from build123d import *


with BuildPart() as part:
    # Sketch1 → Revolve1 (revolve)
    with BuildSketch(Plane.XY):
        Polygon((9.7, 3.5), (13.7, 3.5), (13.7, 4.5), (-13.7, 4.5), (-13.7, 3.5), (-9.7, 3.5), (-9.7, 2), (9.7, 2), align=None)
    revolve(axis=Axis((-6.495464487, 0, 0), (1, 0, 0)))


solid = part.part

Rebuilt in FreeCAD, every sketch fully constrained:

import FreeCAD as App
import Part
import Sketcher

V = App.Vector


def add_polygon(sketch, points):
    """Adds a closed chain of lines whose ends are joined by coincident constraints."""
    first, n = sketch.GeometryCount, len(points)
    for a, b in zip(points, points[1:] + points[:1]):
        sketch.addGeometry(Part.LineSegment(App.Vector(*a, 0), App.Vector(*b, 0)), False)
    for i in range(n):
        sketch.addConstraint(Sketcher.Constraint("Coincident", first + i, 2, first + (i + 1) % n, 1))

doc = App.newDocument("Part")
params = doc.addObject("Spreadsheet::Sheet", "Params")
for row, (alias, value) in enumerate([
    ("sketch1_width", "4 mm"),
    ("sketch1_height", "1 mm"),
    ("sketch1_width2", "27.4 mm"),
    ("sketch1_height2", "1.5 mm"),
    ("revolution_angle", "360 deg"),
], start=1):
    params.set(f"A{row}", alias)
    params.set(f"B{row}", "=" + value)
    params.setAlias(f"B{row}", alias)

body = doc.addObject("PartDesign::Body", "Body")

# Sketch on XY plane
sketch1 = body.newObject("Sketcher::SketchObject", "Sketch")
sketch1.AttachmentSupport = (doc.getObject("XY_Plane"), [""])
sketch1.MapMode = "FlatFace"
add_polygon(sketch1, [(9.7, 3.5), (13.7, 3.5), (13.7, 4.5), (-13.7, 4.5), (-13.7, 3.5), (-9.7, 3.5), (-9.7, 2), (9.7, 2)])  # lines 0-7
sketch1.addConstraint([
    Sketcher.Constraint("Horizontal", 0),
    Sketcher.Constraint("Vertical", 1),
    Sketcher.Constraint("Horizontal", 2),
    Sketcher.Constraint("Vertical", 3),
    Sketcher.Constraint("Horizontal", 4),
    Sketcher.Constraint("Vertical", 5),
    Sketcher.Constraint("Horizontal", 6),
    Sketcher.Constraint("Vertical", 7),
    Sketcher.Constraint("Symmetric", 0, 2, 3, 2, -2),
    Sketcher.Constraint("Equal", 0, 4),
    Sketcher.Constraint("DistanceX", 0, 1, 0, 2, 4.0),
    Sketcher.Constraint("DistanceY", 1, 1, 1, 2, 1.0),
    Sketcher.Constraint("DistanceX", 2, 2, 2, 1, 27.4),
    Sketcher.Constraint("DistanceY", 5, 2, 5, 1, 1.5),
    Sketcher.Constraint("DistanceY", -1, 1, 5, 2, 2.0),
])
sketch1.setExpression("Constraints[18]", "Params.sketch1_width")
sketch1.setExpression("Constraints[19]", "Params.sketch1_height")
sketch1.setExpression("Constraints[20]", "Params.sketch1_width2")
sketch1.setExpression("Constraints[21]", "Params.sketch1_height2")
revolution = body.newObject("PartDesign::Revolution", "Revolution")
revolution.Profile = sketch1
revolution.ReferenceAxis = (sketch1, ["H_Axis"])
revolution.setExpression("Angle", "Params.revolution_angle")

doc.recompute()
